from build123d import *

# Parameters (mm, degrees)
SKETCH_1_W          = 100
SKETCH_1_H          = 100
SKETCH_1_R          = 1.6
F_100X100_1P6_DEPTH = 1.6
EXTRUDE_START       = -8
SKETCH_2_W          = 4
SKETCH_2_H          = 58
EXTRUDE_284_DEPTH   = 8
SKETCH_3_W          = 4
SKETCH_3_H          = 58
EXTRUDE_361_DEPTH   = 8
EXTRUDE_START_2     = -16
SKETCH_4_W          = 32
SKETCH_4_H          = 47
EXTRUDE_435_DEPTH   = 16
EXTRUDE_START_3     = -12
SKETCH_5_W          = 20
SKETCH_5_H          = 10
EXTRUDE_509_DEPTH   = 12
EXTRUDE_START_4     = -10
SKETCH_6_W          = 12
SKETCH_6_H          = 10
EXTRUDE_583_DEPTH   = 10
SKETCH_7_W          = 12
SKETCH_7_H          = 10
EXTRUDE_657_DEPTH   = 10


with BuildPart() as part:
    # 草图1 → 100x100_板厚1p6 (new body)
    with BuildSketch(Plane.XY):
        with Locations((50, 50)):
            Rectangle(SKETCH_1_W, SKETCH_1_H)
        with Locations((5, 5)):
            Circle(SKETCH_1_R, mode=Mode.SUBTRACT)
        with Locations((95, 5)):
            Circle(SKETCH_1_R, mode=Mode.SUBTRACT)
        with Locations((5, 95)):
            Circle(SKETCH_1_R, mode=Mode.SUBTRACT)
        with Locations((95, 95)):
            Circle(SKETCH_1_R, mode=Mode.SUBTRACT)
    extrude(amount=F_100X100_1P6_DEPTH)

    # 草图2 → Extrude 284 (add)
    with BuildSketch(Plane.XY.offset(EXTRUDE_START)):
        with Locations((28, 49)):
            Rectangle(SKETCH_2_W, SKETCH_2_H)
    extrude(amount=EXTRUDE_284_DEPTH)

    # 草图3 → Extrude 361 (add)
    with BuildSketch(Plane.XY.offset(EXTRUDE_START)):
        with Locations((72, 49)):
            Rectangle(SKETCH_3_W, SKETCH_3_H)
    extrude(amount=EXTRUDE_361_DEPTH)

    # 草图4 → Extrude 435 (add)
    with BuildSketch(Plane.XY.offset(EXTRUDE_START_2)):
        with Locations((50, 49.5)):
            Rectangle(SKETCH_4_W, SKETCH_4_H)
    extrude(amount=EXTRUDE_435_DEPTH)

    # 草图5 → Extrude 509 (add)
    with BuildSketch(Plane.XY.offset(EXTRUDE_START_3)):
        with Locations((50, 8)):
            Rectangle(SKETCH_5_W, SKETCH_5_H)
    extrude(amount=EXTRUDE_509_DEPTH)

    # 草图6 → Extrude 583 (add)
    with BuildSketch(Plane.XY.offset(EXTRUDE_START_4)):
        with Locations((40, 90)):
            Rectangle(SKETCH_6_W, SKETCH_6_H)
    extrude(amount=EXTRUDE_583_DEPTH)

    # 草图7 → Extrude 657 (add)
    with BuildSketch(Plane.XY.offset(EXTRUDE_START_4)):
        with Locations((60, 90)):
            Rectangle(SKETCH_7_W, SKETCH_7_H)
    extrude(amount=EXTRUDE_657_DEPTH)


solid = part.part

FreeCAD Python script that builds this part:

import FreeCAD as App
import Part
import Sketcher
from FreeCAD import Vector
Q = App.Units.Quantity

doc = App.newDocument("Part")
body = doc.addObject("PartDesign::Body", "Body")

# Sketch on XY plane
sketch1 = body.newObject("Sketcher::SketchObject", "Sketch")
sketch1.AttachmentSupport = (doc.getObject("XY_Plane"), [""])
sketch1.MapMode = "FlatFace"
sketch1.addGeometry([
    Part.LineSegment(Vector(0, 100, 0), Vector(0, 0, 0)),  # 0
    Part.LineSegment(Vector(0, 0, 0), Vector(100, 0, 0)),  # 1
    Part.LineSegment(Vector(100, 0, 0), Vector(100, 100, 0)),  # 2
    Part.LineSegment(Vector(100, 100, 0), Vector(0, 100, 0)),  # 3
    Part.Circle(Vector(5, 5, 0), Vector(0, 0, 1), 1.6),  # 4
    Part.Circle(Vector(95, 5, 0), Vector(0, 0, 1), 1.6),  # 5
    Part.Circle(Vector(5, 95, 0), Vector(0, 0, 1), 1.6),  # 6
    Part.Circle(Vector(95, 95, 0), Vector(0, 0, 1), 1.6),  # 7
], False)
sketch1.addConstraint([
    Sketcher.Constraint("Coincident", 0, 2, 1, 1),
    Sketcher.Constraint("Coincident", 1, 2, 2, 1),
    Sketcher.Constraint("Coincident", 2, 2, 3, 1),
    Sketcher.Constraint("Coincident", 3, 2, 0, 1),
    Sketcher.Constraint("Vertical", 0),
    Sketcher.Constraint("Horizontal", 1),
    Sketcher.Constraint("Vertical", 2),
    Sketcher.Constraint("Horizontal", 3),
    Sketcher.Constraint("Coincident", 0, 2, -1, 1),
    Sketcher.Constraint("Equal", 4, 5),
    Sketcher.Constraint("Equal", 5, 6),
    Sketcher.Constraint("Equal", 6, 7),
    Sketcher.Constraint("Horizontal", 4, 3, 5, 3),
    Sketcher.Constraint("Horizontal", 6, 3, 7, 3),
    Sketcher.Constraint("Vertical", 4, 3, 6, 3),
    Sketcher.Constraint("Vertical", 5, 3, 7, 3),
    Sketcher.Constraint("Equal", 3, 0),
    Sketcher.Constraint("Diameter", 4, Q("3.2 mm")),
    Sketcher.Constraint("DistanceX", 1, 1, 1, 2, Q("100 mm")),
    Sketcher.Constraint("DistanceX", -1, 1, 4, 3, Q("5 mm")),
    Sketcher.Constraint("DistanceY", -1, 1, 4, 3, Q("5 mm")),
    Sketcher.Constraint("DistanceX", -1, 1, 5, 3, Q("95 mm")),
    Sketcher.Constraint("DistanceY", -1, 1, 6, 3, Q("95 mm")),
])
pad1 = body.newObject("PartDesign::Pad", "Pad")
pad1.Profile = sketch1
pad1.Length = 1.6

# Sketch on XY plane
sketch2 = body.newObject("Sketcher::SketchObject", "Sketch001")
sketch2.AttachmentSupport = (doc.getObject("XY_Plane"), [""])
sketch2.MapMode = "FlatFace"
sketch2.AttachmentOffset = App.Placement(Vector(0, 0, -8), App.Rotation())
sketch2.addGeometry([
    Part.LineSegment(Vector(26, 78, 0), Vector(26, 20, 0)),
    Part.LineSegment(Vector(26, 20, 0), Vector(30, 20, 0)),
    Part.LineSegment(Vector(30, 20, 0), Vector(30, 78, 0)),
    Part.LineSegment(Vector(30, 78, 0), Vector(26, 78, 0)),
], False)
sketch2.addConstraint([
    Sketcher.Constraint("Coincident", 0, 2, 1, 1),
    Sketcher.Constraint("Coincident", 1, 2, 2, 1),
    Sketcher.Constraint("Coincident", 2, 2, 3, 1),
    Sketcher.Constraint("Coincident", 3, 2, 0, 1),
    Sketcher.Constraint("Vertical", 0),
    Sketcher.Constraint("Horizontal", 1),
    Sketcher.Constraint("Vertical", 2),
    Sketcher.Constraint("Horizontal", 3),
    Sketcher.Constraint("DistanceX", 1, 1, 1, 2, Q("4 mm")),
    Sketcher.Constraint("DistanceY", 0, 2, 0, 1, Q("58 mm")),
    Sketcher.Constraint("DistanceX", -1, 1, 0, 2, Q("26 mm")),
    Sketcher.Constraint("DistanceY", -1, 1, 0, 2, Q("20 mm")),
])
pad2 = body.newObject("PartDesign::Pad", "Pad001")
pad2.Profile = sketch2
pad2.Length = 8

# Sketch on XY plane
sketch3 = body.newObject("Sketcher::SketchObject", "Sketch002")
sketch3.AttachmentSupport = (doc.getObject("XY_Plane"), [""])
sketch3.MapMode = "FlatFace"
sketch3.AttachmentOffset = App.Placement(Vector(0, 0, -8), App.Rotation())
sketch3.addGeometry([
    Part.LineSegment(Vector(70, 78, 0), Vector(70, 20, 0)),
    Part.LineSegment(Vector(70, 20, 0), Vector(74, 20, 0)),
    Part.LineSegment(Vector(74, 20, 0), Vector(74, 78, 0)),
    Part.LineSegment(Vector(74, 78, 0), Vector(70, 78, 0)),
], False)
sketch3.addConstraint([
    Sketcher.Constraint("Coincident", 0, 2, 1, 1),
    Sketcher.Constraint("Coincident", 1, 2, 2, 1),
    Sketcher.Constraint("Coincident", 2, 2, 3, 1),
    Sketcher.Constraint("Coincident", 3, 2, 0, 1),
    Sketcher.Constraint("Vertical", 0),
    Sketcher.Constraint("Horizontal", 1),
    Sketcher.Constraint("Vertical", 2),
    Sketcher.Constraint("Horizontal", 3),
    Sketcher.Constraint("DistanceX", 1, 1, 1, 2, Q("4 mm")),
    Sketcher.Constraint("DistanceY", 0, 2, 0, 1, Q("58 mm")),
    Sketcher.Constraint("DistanceX", -1, 1, 0, 2, Q("70 mm")),
    Sketcher.Constraint("DistanceY", -1, 1, 0, 2, Q("20 mm")),
])
pad3 = body.newObject("PartDesign::Pad", "Pad002")
pad3.Profile = sketch3
pad3.Length = 8

# Sketch on XY plane
sketch4 = body.newObject("Sketcher::SketchObject", "Sketch003")
sketch4.AttachmentSupport = (doc.getObject("XY_Plane"), [""])
sketch4.MapMode = "FlatFace"
sketch4.AttachmentOffset = App.Placement(Vector(0, 0, -16), App.Rotation())
sketch4.addGeometry([
    Part.LineSegment(Vector(34, 73, 0), Vector(34, 26, 0)),
    Part.LineSegment(Vector(34, 26, 0), Vector(66, 26, 0)),
    Part.LineSegment(Vector(66, 26, 0), Vector(66, 73, 0)),
    Part.LineSegment(Vector(66, 73, 0), Vector(34, 73, 0)),
], False)
sketch4.addConstraint([
    Sketcher.Constraint("Coincident", 0, 2, 1, 1),
    Sketcher.Constraint("Coincident", 1, 2, 2, 1),
    Sketcher.Constraint("Coincident", 2, 2, 3, 1),
    Sketcher.Constraint("Coincident", 3, 2, 0, 1),
    Sketcher.Constraint("Vertical", 0),
    Sketcher.Constraint("Horizontal", 1),
    Sketcher.Constraint("Vertical", 2),
    Sketcher.Constraint("Horizontal", 3),
    Sketcher.Constraint("DistanceX", 1, 1, 1, 2, Q("32 mm")),
    Sketcher.Constraint("DistanceY", 0, 2, 0, 1, Q("47 mm")),
    Sketcher.Constraint("DistanceX", -1, 1, 0, 2, Q("34 mm")),
    Sketcher.Constraint("DistanceY", -1, 1, 0, 2, Q("26 mm")),
])
pad4 = body.newObject("PartDesign::Pad", "Pad003")
pad4.Profile = sketch4
pad4.Length = 16

# Sketch on XY plane
sketch5 = body.newObject("Sketcher::SketchObject", "Sketch004")
sketch5.AttachmentSupport = (doc.getObject("XY_Plane"), [""])
sketch5.MapMode = "FlatFace"
sketch5.AttachmentOffset = App.Placement(Vector(0, 0, -12), App.Rotation())
sketch5.addGeometry([
    Part.LineSegment(Vector(40, 13, 0), Vector(40, 3, 0)),
    Part.LineSegment(Vector(40, 3, 0), Vector(60, 3, 0)),
    Part.LineSegment(Vector(60, 3, 0), Vector(60, 13, 0)),
    Part.LineSegment(Vector(60, 13, 0), Vector(40, 13, 0)),
], False)
sketch5.addConstraint([
    Sketcher.Constraint("Coincident", 0, 2, 1, 1),
    Sketcher.Constraint("Coincident", 1, 2, 2, 1),
    Sketcher.Constraint("Coincident", 2, 2, 3, 1),
    Sketcher.Constraint("Coincident", 3, 2, 0, 1),
    Sketcher.Constraint("Vertical", 0),
    Sketcher.Constraint("Horizontal", 1),
    Sketcher.Constraint("Vertical", 2),
    Sketcher.Constraint("Horizontal", 3),
    Sketcher.Constraint("DistanceX", 1, 1, 1, 2, Q("20 mm")),
    Sketcher.Constraint("DistanceY", 0, 2, 0, 1, Q("10 mm")),
    Sketcher.Constraint("DistanceX", -1, 1, 0, 2, Q("40 mm")),
    Sketcher.Constraint("DistanceY", -1, 1, 0, 2, Q("3 mm")),
])
pad5 = body.newObject("PartDesign::Pad", "Pad004")
pad5.Profile = sketch5
pad5.Length = 12

# Sketch on XY plane
sketch6 = body.newObject("Sketcher::SketchObject", "Sketch005")
sketch6.AttachmentSupport = (doc.getObject("XY_Plane"), [""])
sketch6.MapMode = "FlatFace"
sketch6.AttachmentOffset = App.Placement(Vector(0, 0, -10), App.Rotation())
sketch6.addGeometry([
    Part.LineSegment(Vector(34, 95, 0), Vector(34, 85, 0)),
    Part.LineSegment(Vector(34, 85, 0), Vector(46, 85, 0)),
    Part.LineSegment(Vector(46, 85, 0), Vector(46, 95, 0)),
    Part.LineSegment(Vector(46, 95, 0), Vector(34, 95, 0)),
], False)
sketch6.addConstraint([
    Sketcher.Constraint("Coincident", 0, 2, 1, 1),
    Sketcher.Constraint("Coincident", 1, 2, 2, 1),
    Sketcher.Constraint("Coincident", 2, 2, 3, 1),
    Sketcher.Constraint("Coincident", 3, 2, 0, 1),
    Sketcher.Constraint("Vertical", 0),
    Sketcher.Constraint("Horizontal", 1),
    Sketcher.Constraint("Vertical", 2),
    Sketcher.Constraint("Horizontal", 3),
    Sketcher.Constraint("DistanceX", 1, 1, 1, 2, Q("12 mm")),
    Sketcher.Constraint("DistanceY", 0, 2, 0, 1, Q("10 mm")),
    Sketcher.Constraint("DistanceX", -1, 1, 0, 2, Q("34 mm")),
    Sketcher.Constraint("DistanceY", -1, 1, 0, 2, Q("85 mm")),
])
pad6 = body.newObject("PartDesign::Pad", "Pad005")
pad6.Profile = sketch6
pad6.Length = 10

# Sketch on XY plane
sketch7 = body.newObject("Sketcher::SketchObject", "Sketch006")
sketch7.AttachmentSupport = (doc.getObject("XY_Plane"), [""])
sketch7.MapMode = "FlatFace"
sketch7.AttachmentOffset = App.Placement(Vector(0, 0, -10), App.Rotation())
sketch7.addGeometry([
    Part.LineSegment(Vector(54, 95, 0), Vector(54, 85, 0)),
    Part.LineSegment(Vector(54, 85, 0), Vector(66, 85, 0)),
    Part.LineSegment(Vector(66, 85, 0), Vector(66, 95, 0)),
    Part.LineSegment(Vector(66, 95, 0), Vector(54, 95, 0)),
], False)
sketch7.addConstraint([
    Sketcher.Constraint("Coincident", 0, 2, 1, 1),
    Sketcher.Constraint("Coincident", 1, 2, 2, 1),
    Sketcher.Constraint("Coincident", 2, 2, 3, 1),
    Sketcher.Constraint("Coincident", 3, 2, 0, 1),
    Sketcher.Constraint("Vertical", 0),
    Sketcher.Constraint("Horizontal", 1),
    Sketcher.Constraint("Vertical", 2),
    Sketcher.Constraint("Horizontal", 3),
    Sketcher.Constraint("DistanceX", 1, 1, 1, 2, Q("12 mm")),
    Sketcher.Constraint("DistanceY", 0, 2, 0, 1, Q("10 mm")),
    Sketcher.Constraint("DistanceX", -1, 1, 0, 2, Q("54 mm")),
    Sketcher.Constraint("DistanceY", -1, 1, 0, 2, Q("85 mm")),
])
pad7 = body.newObject("PartDesign::Pad", "Pad006")
pad7.Profile = sketch7
pad7.Length = 10

doc.recompute()
